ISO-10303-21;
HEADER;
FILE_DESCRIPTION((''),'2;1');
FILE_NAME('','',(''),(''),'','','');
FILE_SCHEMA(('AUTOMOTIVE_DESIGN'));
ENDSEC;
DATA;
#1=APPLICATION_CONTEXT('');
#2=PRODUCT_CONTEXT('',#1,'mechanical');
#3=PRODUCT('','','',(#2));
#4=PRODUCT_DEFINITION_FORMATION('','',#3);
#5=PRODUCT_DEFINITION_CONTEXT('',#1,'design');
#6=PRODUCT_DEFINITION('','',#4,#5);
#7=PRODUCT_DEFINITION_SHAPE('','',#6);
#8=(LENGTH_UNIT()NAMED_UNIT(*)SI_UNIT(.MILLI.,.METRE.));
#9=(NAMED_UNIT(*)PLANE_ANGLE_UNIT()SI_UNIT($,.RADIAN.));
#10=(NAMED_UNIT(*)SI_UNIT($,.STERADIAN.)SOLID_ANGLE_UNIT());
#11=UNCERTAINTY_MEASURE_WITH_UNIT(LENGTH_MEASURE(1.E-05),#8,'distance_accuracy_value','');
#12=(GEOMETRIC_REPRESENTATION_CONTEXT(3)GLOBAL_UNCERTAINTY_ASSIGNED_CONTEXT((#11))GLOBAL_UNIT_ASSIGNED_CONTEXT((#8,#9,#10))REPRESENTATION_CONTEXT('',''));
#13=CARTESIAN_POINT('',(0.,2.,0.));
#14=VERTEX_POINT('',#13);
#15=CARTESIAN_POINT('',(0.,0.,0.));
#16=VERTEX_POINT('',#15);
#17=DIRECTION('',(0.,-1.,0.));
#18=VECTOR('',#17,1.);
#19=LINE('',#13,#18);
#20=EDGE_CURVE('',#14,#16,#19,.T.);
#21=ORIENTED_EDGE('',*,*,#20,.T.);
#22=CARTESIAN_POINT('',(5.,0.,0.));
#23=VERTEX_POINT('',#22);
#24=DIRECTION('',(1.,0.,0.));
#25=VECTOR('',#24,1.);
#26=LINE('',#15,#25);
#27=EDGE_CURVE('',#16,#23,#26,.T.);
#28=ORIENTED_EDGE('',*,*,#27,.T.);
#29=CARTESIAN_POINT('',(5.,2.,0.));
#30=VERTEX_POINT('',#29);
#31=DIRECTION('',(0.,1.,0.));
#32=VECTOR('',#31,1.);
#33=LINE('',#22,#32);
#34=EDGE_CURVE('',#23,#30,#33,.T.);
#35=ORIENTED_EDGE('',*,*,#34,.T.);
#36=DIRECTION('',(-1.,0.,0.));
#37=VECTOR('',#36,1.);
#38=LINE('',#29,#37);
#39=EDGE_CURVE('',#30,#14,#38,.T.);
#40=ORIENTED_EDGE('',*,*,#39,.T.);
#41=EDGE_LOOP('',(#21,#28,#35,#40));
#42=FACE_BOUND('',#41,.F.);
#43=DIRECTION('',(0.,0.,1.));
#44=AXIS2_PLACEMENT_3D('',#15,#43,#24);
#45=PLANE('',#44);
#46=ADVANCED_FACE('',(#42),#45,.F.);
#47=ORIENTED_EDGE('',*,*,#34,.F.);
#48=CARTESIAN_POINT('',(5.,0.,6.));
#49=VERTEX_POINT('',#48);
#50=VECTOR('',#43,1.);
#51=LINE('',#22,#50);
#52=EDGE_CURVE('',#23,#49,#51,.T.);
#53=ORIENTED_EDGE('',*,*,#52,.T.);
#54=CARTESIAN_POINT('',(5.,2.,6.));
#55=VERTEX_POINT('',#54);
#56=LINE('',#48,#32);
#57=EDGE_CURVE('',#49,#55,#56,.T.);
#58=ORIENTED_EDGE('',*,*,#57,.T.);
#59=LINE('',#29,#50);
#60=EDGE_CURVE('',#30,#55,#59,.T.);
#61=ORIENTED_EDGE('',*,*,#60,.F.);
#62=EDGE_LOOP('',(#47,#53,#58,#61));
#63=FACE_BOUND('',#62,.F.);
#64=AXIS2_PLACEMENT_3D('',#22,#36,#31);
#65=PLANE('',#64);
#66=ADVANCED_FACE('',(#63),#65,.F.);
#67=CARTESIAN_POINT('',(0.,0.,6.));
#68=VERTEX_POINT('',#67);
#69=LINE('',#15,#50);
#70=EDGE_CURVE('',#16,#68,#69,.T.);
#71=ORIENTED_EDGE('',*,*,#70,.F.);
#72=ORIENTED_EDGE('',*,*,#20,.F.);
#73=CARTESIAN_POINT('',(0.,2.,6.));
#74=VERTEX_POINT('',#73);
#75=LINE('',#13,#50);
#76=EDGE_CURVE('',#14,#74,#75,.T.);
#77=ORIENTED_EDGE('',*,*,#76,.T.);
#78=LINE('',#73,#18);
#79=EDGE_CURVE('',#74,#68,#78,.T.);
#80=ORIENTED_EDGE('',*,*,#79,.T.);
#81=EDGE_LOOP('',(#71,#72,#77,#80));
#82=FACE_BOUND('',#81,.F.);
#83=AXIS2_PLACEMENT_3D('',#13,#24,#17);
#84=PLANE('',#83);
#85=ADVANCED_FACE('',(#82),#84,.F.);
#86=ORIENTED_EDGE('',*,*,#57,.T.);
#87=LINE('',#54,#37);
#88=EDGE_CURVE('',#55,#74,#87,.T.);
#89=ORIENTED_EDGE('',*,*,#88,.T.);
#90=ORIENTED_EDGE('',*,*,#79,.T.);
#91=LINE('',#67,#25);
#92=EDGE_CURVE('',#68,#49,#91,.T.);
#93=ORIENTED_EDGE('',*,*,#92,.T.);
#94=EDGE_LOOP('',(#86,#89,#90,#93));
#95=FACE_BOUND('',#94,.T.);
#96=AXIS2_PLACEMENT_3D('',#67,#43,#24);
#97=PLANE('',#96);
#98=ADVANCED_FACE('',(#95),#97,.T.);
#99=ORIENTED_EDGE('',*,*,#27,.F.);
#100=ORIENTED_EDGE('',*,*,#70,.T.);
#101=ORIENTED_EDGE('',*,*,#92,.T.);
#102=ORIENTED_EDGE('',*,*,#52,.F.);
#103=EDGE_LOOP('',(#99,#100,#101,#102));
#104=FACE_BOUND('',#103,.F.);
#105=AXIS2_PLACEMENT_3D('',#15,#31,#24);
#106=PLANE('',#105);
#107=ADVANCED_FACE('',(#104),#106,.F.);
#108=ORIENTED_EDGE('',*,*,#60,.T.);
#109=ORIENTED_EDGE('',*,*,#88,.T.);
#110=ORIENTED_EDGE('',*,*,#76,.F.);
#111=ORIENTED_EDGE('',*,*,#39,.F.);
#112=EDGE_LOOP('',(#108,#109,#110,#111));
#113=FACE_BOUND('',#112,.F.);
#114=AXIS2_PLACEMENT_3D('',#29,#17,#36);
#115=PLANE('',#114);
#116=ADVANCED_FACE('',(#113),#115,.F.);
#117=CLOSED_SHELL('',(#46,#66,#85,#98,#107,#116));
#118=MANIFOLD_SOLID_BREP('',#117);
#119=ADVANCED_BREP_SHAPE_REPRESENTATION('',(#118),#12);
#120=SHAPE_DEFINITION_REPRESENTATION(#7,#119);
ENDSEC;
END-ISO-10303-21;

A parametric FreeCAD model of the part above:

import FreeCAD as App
import Part
import Sketcher

doc = App.newDocument("Part")
params = doc.addObject("Spreadsheet::Sheet", "Params")
for row, (alias, value) in enumerate([
    ("sketch1_width", "5 mm"),
    ("sketch1_height", "2 mm"),
    ("pad1_length", "6 mm"),
], start=1):
    params.set(f"A{row}", alias)
    params.set(f"B{row}", "=" + value)
    params.setAlias(f"B{row}", alias)

body = doc.addObject("PartDesign::Body", "Body")

# Sketch on XY plane
sketch1 = doc.addObject("Sketcher::SketchObject", "Sketch")
body.addObject(sketch1)
sketch1.AttachmentSupport = (doc.XY_Plane, [""])
sketch1.MapMode = "FlatFace"
sketch1.addGeometry(Part.LineSegment(App.Vector(0, 2, 0), App.Vector(0, 0, 0)), False)
sketch1.addGeometry(Part.LineSegment(App.Vector(0, 0, 0), App.Vector(5, 0, 0)), False)
sketch1.addGeometry(Part.LineSegment(App.Vector(5, 0, 0), App.Vector(5, 2, 0)), False)
sketch1.addGeometry(Part.LineSegment(App.Vector(5, 2, 0), App.Vector(0, 2, 0)), False)
sketch1.addConstraint(Sketcher.Constraint("Coincident", 0, 2, 1, 1))
sketch1.addConstraint(Sketcher.Constraint("Coincident", 1, 2, 2, 1))
sketch1.addConstraint(Sketcher.Constraint("Coincident", 2, 2, 3, 1))
sketch1.addConstraint(Sketcher.Constraint("Coincident", 3, 2, 0, 1))
sketch1.addConstraint(Sketcher.Constraint("Vertical", 0))
sketch1.addConstraint(Sketcher.Constraint("Horizontal", 1))
sketch1.addConstraint(Sketcher.Constraint("Vertical", 2))
sketch1.addConstraint(Sketcher.Constraint("Horizontal", 3))
sketch1.addConstraint(Sketcher.Constraint("Coincident", 0, 2, -1, 1))
sketch1.addConstraint(Sketcher.Constraint("DistanceX", 1, 1, 1, 2, 5.0))
sketch1.addConstraint(Sketcher.Constraint("DistanceY", 0, 2, 0, 1, 2.0))
sketch1.setExpression("Constraints[9]", "Params.sketch1_width")
sketch1.setExpression("Constraints[10]", "Params.sketch1_height")
pad1 = doc.addObject("PartDesign::Pad", "Pad")
body.addObject(pad1)
pad1.Profile = sketch1
pad1.setExpression("Length", "Params.pad1_length")

doc.recompute()
